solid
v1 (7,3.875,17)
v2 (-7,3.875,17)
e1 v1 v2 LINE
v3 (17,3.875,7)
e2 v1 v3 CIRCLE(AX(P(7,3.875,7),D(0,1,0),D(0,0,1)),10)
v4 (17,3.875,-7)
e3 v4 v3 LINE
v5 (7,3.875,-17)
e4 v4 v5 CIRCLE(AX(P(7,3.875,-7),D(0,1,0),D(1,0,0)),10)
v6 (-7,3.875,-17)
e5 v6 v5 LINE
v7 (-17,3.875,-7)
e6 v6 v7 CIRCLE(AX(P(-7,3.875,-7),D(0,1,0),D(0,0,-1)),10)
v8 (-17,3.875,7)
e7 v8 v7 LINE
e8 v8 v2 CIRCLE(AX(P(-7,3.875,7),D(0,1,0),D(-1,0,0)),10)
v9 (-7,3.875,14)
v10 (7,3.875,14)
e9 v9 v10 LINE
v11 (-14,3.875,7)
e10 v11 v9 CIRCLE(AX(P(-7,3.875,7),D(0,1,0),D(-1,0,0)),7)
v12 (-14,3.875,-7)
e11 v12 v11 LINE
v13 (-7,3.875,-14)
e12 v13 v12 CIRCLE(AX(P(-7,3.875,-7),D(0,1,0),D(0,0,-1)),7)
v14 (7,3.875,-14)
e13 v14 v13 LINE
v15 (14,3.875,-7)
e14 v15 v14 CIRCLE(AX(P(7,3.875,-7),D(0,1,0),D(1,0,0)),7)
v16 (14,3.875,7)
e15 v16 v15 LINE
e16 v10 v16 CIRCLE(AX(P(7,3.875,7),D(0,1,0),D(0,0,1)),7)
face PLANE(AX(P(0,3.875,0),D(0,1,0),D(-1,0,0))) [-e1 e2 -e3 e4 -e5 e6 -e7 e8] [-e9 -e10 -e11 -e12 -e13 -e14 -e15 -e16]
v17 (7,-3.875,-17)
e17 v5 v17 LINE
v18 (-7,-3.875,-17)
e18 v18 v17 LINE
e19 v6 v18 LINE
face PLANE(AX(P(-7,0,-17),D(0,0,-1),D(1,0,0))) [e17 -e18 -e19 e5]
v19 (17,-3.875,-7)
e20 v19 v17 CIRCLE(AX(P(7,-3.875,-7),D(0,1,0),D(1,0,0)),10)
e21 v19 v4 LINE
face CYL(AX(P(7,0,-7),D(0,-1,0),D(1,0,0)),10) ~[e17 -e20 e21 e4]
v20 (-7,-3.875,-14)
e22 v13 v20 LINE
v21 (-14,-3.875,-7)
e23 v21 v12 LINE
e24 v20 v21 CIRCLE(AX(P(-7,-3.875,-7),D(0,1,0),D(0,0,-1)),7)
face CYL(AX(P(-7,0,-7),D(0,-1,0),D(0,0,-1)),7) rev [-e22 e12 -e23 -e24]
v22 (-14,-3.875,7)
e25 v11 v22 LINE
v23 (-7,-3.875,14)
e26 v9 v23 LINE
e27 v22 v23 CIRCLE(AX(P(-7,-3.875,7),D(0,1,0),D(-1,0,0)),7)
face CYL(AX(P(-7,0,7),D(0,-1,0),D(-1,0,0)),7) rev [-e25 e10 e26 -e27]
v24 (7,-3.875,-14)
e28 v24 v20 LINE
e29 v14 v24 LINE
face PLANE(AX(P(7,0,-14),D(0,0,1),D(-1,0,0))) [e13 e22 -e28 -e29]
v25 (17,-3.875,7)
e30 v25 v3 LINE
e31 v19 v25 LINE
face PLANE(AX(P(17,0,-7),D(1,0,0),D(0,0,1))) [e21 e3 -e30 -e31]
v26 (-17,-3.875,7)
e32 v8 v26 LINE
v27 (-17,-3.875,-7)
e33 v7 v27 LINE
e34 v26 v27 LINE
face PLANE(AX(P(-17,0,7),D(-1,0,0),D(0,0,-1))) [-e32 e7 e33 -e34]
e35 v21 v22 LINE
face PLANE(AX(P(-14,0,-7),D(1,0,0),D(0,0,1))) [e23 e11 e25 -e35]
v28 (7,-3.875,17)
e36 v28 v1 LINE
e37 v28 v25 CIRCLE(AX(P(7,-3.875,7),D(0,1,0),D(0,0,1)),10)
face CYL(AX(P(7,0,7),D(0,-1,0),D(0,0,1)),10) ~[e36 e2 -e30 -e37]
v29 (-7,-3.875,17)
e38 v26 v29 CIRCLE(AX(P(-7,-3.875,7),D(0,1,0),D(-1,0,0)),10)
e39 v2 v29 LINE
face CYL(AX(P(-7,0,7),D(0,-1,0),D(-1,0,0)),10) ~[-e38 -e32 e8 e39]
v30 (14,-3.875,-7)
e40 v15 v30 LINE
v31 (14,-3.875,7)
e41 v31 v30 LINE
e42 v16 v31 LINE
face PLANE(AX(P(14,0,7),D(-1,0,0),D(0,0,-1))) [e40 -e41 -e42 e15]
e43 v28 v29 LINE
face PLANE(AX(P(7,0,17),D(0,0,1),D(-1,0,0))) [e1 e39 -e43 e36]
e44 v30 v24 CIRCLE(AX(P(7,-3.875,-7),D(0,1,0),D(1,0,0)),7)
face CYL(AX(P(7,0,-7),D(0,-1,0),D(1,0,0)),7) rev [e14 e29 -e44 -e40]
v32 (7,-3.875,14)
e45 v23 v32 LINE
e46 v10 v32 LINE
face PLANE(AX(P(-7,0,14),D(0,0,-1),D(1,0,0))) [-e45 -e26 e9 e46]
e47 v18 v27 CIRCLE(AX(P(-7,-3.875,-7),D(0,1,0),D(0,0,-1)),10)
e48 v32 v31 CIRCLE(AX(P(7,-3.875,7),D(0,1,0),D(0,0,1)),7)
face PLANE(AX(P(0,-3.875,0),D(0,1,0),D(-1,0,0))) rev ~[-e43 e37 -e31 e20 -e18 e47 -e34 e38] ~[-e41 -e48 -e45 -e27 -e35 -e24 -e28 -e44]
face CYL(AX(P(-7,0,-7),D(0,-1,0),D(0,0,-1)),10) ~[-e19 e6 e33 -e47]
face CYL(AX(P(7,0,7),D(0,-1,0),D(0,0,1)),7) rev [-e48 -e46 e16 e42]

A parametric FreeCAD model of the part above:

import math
import FreeCAD as App
import Part
import Sketcher

V = App.Vector

doc = App.newDocument("Part")
body = doc.addObject("PartDesign::Body", "Body")

# Sketch on XZ plane
sketch1 = doc.addObject("Sketcher::SketchObject", "Sketch")
body.addObject(sketch1)
sketch1.AttachmentSupport = (doc.XZ_Plane, [""])
sketch1.MapMode = "FlatFace"
sketch1.addGeometry(Part.LineSegment(V(-7, 17, 0), V(7, 17, 0)), False)
sketch1.addGeometry(Part.ArcOfCircle(Part.Circle(V(7, 7, 0), V(0, 0, 1), 10), math.radians(0), math.radians(90)), False)
sketch1.addGeometry(Part.LineSegment(V(17, 7, 0), V(17, -7, 0)), False)
sketch1.addGeometry(Part.ArcOfCircle(Part.Circle(V(7, -7, 0), V(0, 0, 1), 10), math.radians(-90), math.radians(0)), False)
sketch1.addGeometry(Part.LineSegment(V(7, -17, 0), V(-7, -17, 0)), False)
sketch1.addGeometry(Part.ArcOfCircle(Part.Circle(V(-7, -7, 0), V(0, 0, 1), 10), math.radians(180), math.radians(270)), False)
sketch1.addGeometry(Part.LineSegment(V(-17, -7, 0), V(-17, 7, 0)), False)
sketch1.addGeometry(Part.ArcOfCircle(Part.Circle(V(-7, 7, 0), V(0, 0, 1), 10), math.radians(90), math.radians(180)), False)
sketch1.addGeometry(Part.LineSegment(V(-14, 7, 0), V(-14, -7, 0)), False)
sketch1.addGeometry(Part.ArcOfCircle(Part.Circle(V(-7, -7, 0), V(0, 0, 1), 7), math.radians(180), math.radians(270)), False)
sketch1.addGeometry(Part.LineSegment(V(-7, -14, 0), V(7, -14, 0)), False)
sketch1.addGeometry(Part.ArcOfCircle(Part.Circle(V(7, -7, 0), V(0, 0, 1), 7), math.radians(-90), math.radians(0)), False)
sketch1.addGeometry(Part.LineSegment(V(14, -7, 0), V(14, 7, 0)), False)
sketch1.addGeometry(Part.ArcOfCircle(Part.Circle(V(7, 7, 0), V(0, 0, 1), 7), math.radians(0), math.radians(90)), False)
sketch1.addGeometry(Part.LineSegment(V(7, 14, 0), V(-7, 14, 0)), False)
sketch1.addGeometry(Part.ArcOfCircle(Part.Circle(V(-7, 7, 0), V(0, 0, 1), 7), math.radians(90), math.radians(180)), False)
sketch1.addConstraint(Sketcher.Constraint("Tangent", 0, 2, 1, 2))
sketch1.addConstraint(Sketcher.Constraint("Tangent", 1, 1, 2, 1))
sketch1.addConstraint(Sketcher.Constraint("Tangent", 2, 2, 3, 2))
sketch1.addConstraint(Sketcher.Constraint("Tangent", 3, 1, 4, 1))
sketch1.addConstraint(Sketcher.Constraint("Tangent", 4, 2, 5, 2))
sketch1.addConstraint(Sketcher.Constraint("Tangent", 5, 1, 6, 1))
sketch1.addConstraint(Sketcher.Constraint("Tangent", 6, 2, 7, 2))
sketch1.addConstraint(Sketcher.Constraint("Tangent", 7, 1, 0, 1))
sketch1.addConstraint(Sketcher.Constraint("Tangent", 8, 2, 9, 1))
sketch1.addConstraint(Sketcher.Constraint("Tangent", 9, 2, 10, 1))
sketch1.addConstraint(Sketcher.Constraint("Tangent", 10, 2, 11, 1))
sketch1.addConstraint(Sketcher.Constraint("Tangent", 11, 2, 12, 1))
sketch1.addConstraint(Sketcher.Constraint("Tangent", 12, 2, 13, 1))
sketch1.addConstraint(Sketcher.Constraint("Tangent", 13, 2, 14, 1))
sketch1.addConstraint(Sketcher.Constraint("Tangent", 14, 2, 15, 1))
sketch1.addConstraint(Sketcher.Constraint("Tangent", 15, 2, 8, 1))
sketch1.addConstraint(Sketcher.Constraint("Horizontal", 0))
sketch1.addConstraint(Sketcher.Constraint("Vertical", 2))
sketch1.addConstraint(Sketcher.Constraint("Horizontal", 4))
sketch1.addConstraint(Sketcher.Constraint("Vertical", 6))
sketch1.addConstraint(Sketcher.Constraint("Vertical", 8))
sketch1.addConstraint(Sketcher.Constraint("Horizontal", 10))
sketch1.addConstraint(Sketcher.Constraint("Vertical", 12))
sketch1.addConstraint(Sketcher.Constraint("Horizontal", 14))
sketch1.addConstraint(Sketcher.Constraint("Coincident", 9, 3, 5, 3))
sketch1.addConstraint(Sketcher.Constraint("Coincident", 11, 3, 3, 3))
sketch1.addConstraint(Sketcher.Constraint("Coincident", 13, 3, 1, 3))
sketch1.addConstraint(Sketcher.Constraint("Equal", 1, 3))
sketch1.addConstraint(Sketcher.Constraint("Equal", 3, 5))
sketch1.addConstraint(Sketcher.Constraint("Equal", 5, 7))
sketch1.addConstraint(Sketcher.Constraint("Equal", 13, 15))
sketch1.addConstraint(Sketcher.Constraint("Symmetric", 1, 3, 5, 3, -1, 1))
sketch1.addConstraint(Sketcher.Constraint("Equal", 14, 2))
sketch1.addConstraint(Sketcher.Constraint("Radius", 1, 10.0))
sketch1.addConstraint(Sketcher.Constraint("Radius", 9, 7.0))
sketch1.addConstraint(Sketcher.Constraint("DistanceX", 0, 1, 0, 2, 14.0))
pad1 = doc.addObject("PartDesign::Pad", "Pad")
body.addObject(pad1)
pad1.Profile = sketch1
pad1.Length = 7.75
pad1.Midplane = True

doc.recompute()
